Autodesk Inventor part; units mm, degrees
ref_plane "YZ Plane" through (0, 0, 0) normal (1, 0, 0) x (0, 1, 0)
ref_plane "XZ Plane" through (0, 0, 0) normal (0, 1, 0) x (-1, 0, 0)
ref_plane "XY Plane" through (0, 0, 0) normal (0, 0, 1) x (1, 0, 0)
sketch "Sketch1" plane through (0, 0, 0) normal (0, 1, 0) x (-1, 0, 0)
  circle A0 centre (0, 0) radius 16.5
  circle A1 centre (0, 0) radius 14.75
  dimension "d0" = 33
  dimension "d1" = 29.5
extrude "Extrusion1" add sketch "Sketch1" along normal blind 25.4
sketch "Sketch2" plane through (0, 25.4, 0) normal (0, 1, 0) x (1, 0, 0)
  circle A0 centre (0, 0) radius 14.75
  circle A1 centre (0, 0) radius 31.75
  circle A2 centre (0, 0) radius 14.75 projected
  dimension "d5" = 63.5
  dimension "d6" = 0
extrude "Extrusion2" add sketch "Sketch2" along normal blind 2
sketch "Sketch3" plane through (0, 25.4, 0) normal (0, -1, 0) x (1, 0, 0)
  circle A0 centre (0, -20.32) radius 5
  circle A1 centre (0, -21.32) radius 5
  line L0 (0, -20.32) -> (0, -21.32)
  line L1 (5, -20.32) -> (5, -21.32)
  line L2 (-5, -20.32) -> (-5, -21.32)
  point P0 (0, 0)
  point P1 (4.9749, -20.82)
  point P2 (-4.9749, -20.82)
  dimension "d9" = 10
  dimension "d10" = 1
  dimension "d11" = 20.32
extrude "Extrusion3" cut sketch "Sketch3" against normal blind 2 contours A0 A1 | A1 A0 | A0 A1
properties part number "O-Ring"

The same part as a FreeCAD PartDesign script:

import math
import FreeCAD as App
import Part
import Sketcher

doc = App.newDocument("Part")
params = doc.addObject("Spreadsheet::Sheet", "Params")
for row, (alias, value) in enumerate([
    ("sketch1_diameter", "33 mm"),
    ("sketch1_diameter2", "29.5 mm"),
    ("pad1_length", "25.4 mm"),
    ("sketch2_diameter", "63.5 mm"),
    ("sketch2_diameter2", "29.5 mm"),
    ("pad2_length", "2 mm"),
    ("sketch3_radius", "5 mm"),
    ("pocket1_length", "2 mm"),
], start=1):
    params.set(f"A{row}", alias)
    params.set(f"B{row}", "=" + value)
    params.setAlias(f"B{row}", alias)

body = doc.addObject("PartDesign::Body", "Body")

sketch1 = body.newObject("Sketcher::SketchObject", "Sketch")
sketch1.AttachmentSupport = (doc.getObject("XZ_Plane"), [""])
sketch1.MapMode = "FlatFace"
sketch1.addGeometry([
    Part.Circle(App.Vector(0, 0, 0), App.Vector(0, 0, 1), 16),
    Part.Circle(App.Vector(0, 0, 0), App.Vector(0, 0, 1), 15),
], False)
sketch1.addConstraint([
    Sketcher.Constraint("Coincident", 0, 3, -1, 1),
    Sketcher.Constraint("Coincident", 1, 3, -1, 1),
    Sketcher.Constraint("Diameter", 0, 33.0),
    Sketcher.Constraint("Diameter", 1, 29.5),
])
sketch1.setExpression("Constraints[2]", "Params.sketch1_diameter")
sketch1.setExpression("Constraints[3]", "Params.sketch1_diameter2")
pad1 = body.newObject("PartDesign::Pad", "Pad")
pad1.Profile = sketch1
pad1.setExpression("Length", "Params.pad1_length")
pad1.Reversed = True

sketch2 = body.newObject("Sketcher::SketchObject", "Sketch001")
sketch2.AttachmentSupport = (doc.getObject("XZ_Plane"), [""])
sketch2.MapMode = "FlatFace"
sketch2.AttachmentOffset = App.Placement(App.Vector(0, 0, -25.4), App.Rotation())
sketch2.addGeometry([
    Part.Circle(App.Vector(0, 0, 0), App.Vector(0, 0, 1), 32),
    Part.Circle(App.Vector(0, 0, 0), App.Vector(0, 0, 1), 15),
], False)
sketch2.addConstraint([
    Sketcher.Constraint("Coincident", 0, 3, -1, 1),
    Sketcher.Constraint("Coincident", 1, 3, -1, 1),
    Sketcher.Constraint("Diameter", 0, 63.5),
    Sketcher.Constraint("Diameter", 1, 29.5),
])
sketch2.setExpression("Constraints[2]", "Params.sketch2_diameter")
sketch2.setExpression("Constraints[3]", "Params.sketch2_diameter2")
pad2 = body.newObject("PartDesign::Pad", "Pad001")
pad2.Profile = sketch2
pad2.setExpression("Length", "Params.pad2_length")
pad2.Reversed = True

sketch3 = body.newObject("Sketcher::SketchObject", "Sketch002")
sketch3.AttachmentSupport = (doc.getObject("XZ_Plane"), [""])
sketch3.MapMode = "FlatFace"
sketch3.AttachmentOffset = App.Placement(App.Vector(0, 0, -25.4), App.Rotation())
sketch3.addGeometry([
    Part.ArcOfCircle(Part.Circle(App.Vector(0, -20, 0), App.Vector(0, 0, 1), 5), math.radians(-6), math.radians(186)),
    Part.ArcOfCircle(Part.Circle(App.Vector(0, -21, 0), App.Vector(0, 0, 1), 5), math.radians(174), math.radians(366)),
], False)
sketch3.addConstraint([
    Sketcher.Constraint("Coincident", 0, 1, 1, 2),
    Sketcher.Constraint("Coincident", 1, 1, 0, 2),
    Sketcher.Constraint("Equal", 0, 1),
    Sketcher.Constraint("Symmetric", 0, 1, 1, 1, -2),
    Sketcher.Constraint("Radius", 0, 5.0),
    Sketcher.Constraint("DistanceY", 1, 3, 0, 3, 1.0),
    Sketcher.Constraint("DistanceY", 0, 3, -1, 1, 20.32),
])
sketch3.setExpression("Constraints[4]", "Params.sketch3_radius")
pocket1 = body.newObject("PartDesign::Pocket", "Pocket")
pocket1.Profile = sketch3
pocket1.setExpression("Length", "Params.pocket1_length")

doc.recompute()
